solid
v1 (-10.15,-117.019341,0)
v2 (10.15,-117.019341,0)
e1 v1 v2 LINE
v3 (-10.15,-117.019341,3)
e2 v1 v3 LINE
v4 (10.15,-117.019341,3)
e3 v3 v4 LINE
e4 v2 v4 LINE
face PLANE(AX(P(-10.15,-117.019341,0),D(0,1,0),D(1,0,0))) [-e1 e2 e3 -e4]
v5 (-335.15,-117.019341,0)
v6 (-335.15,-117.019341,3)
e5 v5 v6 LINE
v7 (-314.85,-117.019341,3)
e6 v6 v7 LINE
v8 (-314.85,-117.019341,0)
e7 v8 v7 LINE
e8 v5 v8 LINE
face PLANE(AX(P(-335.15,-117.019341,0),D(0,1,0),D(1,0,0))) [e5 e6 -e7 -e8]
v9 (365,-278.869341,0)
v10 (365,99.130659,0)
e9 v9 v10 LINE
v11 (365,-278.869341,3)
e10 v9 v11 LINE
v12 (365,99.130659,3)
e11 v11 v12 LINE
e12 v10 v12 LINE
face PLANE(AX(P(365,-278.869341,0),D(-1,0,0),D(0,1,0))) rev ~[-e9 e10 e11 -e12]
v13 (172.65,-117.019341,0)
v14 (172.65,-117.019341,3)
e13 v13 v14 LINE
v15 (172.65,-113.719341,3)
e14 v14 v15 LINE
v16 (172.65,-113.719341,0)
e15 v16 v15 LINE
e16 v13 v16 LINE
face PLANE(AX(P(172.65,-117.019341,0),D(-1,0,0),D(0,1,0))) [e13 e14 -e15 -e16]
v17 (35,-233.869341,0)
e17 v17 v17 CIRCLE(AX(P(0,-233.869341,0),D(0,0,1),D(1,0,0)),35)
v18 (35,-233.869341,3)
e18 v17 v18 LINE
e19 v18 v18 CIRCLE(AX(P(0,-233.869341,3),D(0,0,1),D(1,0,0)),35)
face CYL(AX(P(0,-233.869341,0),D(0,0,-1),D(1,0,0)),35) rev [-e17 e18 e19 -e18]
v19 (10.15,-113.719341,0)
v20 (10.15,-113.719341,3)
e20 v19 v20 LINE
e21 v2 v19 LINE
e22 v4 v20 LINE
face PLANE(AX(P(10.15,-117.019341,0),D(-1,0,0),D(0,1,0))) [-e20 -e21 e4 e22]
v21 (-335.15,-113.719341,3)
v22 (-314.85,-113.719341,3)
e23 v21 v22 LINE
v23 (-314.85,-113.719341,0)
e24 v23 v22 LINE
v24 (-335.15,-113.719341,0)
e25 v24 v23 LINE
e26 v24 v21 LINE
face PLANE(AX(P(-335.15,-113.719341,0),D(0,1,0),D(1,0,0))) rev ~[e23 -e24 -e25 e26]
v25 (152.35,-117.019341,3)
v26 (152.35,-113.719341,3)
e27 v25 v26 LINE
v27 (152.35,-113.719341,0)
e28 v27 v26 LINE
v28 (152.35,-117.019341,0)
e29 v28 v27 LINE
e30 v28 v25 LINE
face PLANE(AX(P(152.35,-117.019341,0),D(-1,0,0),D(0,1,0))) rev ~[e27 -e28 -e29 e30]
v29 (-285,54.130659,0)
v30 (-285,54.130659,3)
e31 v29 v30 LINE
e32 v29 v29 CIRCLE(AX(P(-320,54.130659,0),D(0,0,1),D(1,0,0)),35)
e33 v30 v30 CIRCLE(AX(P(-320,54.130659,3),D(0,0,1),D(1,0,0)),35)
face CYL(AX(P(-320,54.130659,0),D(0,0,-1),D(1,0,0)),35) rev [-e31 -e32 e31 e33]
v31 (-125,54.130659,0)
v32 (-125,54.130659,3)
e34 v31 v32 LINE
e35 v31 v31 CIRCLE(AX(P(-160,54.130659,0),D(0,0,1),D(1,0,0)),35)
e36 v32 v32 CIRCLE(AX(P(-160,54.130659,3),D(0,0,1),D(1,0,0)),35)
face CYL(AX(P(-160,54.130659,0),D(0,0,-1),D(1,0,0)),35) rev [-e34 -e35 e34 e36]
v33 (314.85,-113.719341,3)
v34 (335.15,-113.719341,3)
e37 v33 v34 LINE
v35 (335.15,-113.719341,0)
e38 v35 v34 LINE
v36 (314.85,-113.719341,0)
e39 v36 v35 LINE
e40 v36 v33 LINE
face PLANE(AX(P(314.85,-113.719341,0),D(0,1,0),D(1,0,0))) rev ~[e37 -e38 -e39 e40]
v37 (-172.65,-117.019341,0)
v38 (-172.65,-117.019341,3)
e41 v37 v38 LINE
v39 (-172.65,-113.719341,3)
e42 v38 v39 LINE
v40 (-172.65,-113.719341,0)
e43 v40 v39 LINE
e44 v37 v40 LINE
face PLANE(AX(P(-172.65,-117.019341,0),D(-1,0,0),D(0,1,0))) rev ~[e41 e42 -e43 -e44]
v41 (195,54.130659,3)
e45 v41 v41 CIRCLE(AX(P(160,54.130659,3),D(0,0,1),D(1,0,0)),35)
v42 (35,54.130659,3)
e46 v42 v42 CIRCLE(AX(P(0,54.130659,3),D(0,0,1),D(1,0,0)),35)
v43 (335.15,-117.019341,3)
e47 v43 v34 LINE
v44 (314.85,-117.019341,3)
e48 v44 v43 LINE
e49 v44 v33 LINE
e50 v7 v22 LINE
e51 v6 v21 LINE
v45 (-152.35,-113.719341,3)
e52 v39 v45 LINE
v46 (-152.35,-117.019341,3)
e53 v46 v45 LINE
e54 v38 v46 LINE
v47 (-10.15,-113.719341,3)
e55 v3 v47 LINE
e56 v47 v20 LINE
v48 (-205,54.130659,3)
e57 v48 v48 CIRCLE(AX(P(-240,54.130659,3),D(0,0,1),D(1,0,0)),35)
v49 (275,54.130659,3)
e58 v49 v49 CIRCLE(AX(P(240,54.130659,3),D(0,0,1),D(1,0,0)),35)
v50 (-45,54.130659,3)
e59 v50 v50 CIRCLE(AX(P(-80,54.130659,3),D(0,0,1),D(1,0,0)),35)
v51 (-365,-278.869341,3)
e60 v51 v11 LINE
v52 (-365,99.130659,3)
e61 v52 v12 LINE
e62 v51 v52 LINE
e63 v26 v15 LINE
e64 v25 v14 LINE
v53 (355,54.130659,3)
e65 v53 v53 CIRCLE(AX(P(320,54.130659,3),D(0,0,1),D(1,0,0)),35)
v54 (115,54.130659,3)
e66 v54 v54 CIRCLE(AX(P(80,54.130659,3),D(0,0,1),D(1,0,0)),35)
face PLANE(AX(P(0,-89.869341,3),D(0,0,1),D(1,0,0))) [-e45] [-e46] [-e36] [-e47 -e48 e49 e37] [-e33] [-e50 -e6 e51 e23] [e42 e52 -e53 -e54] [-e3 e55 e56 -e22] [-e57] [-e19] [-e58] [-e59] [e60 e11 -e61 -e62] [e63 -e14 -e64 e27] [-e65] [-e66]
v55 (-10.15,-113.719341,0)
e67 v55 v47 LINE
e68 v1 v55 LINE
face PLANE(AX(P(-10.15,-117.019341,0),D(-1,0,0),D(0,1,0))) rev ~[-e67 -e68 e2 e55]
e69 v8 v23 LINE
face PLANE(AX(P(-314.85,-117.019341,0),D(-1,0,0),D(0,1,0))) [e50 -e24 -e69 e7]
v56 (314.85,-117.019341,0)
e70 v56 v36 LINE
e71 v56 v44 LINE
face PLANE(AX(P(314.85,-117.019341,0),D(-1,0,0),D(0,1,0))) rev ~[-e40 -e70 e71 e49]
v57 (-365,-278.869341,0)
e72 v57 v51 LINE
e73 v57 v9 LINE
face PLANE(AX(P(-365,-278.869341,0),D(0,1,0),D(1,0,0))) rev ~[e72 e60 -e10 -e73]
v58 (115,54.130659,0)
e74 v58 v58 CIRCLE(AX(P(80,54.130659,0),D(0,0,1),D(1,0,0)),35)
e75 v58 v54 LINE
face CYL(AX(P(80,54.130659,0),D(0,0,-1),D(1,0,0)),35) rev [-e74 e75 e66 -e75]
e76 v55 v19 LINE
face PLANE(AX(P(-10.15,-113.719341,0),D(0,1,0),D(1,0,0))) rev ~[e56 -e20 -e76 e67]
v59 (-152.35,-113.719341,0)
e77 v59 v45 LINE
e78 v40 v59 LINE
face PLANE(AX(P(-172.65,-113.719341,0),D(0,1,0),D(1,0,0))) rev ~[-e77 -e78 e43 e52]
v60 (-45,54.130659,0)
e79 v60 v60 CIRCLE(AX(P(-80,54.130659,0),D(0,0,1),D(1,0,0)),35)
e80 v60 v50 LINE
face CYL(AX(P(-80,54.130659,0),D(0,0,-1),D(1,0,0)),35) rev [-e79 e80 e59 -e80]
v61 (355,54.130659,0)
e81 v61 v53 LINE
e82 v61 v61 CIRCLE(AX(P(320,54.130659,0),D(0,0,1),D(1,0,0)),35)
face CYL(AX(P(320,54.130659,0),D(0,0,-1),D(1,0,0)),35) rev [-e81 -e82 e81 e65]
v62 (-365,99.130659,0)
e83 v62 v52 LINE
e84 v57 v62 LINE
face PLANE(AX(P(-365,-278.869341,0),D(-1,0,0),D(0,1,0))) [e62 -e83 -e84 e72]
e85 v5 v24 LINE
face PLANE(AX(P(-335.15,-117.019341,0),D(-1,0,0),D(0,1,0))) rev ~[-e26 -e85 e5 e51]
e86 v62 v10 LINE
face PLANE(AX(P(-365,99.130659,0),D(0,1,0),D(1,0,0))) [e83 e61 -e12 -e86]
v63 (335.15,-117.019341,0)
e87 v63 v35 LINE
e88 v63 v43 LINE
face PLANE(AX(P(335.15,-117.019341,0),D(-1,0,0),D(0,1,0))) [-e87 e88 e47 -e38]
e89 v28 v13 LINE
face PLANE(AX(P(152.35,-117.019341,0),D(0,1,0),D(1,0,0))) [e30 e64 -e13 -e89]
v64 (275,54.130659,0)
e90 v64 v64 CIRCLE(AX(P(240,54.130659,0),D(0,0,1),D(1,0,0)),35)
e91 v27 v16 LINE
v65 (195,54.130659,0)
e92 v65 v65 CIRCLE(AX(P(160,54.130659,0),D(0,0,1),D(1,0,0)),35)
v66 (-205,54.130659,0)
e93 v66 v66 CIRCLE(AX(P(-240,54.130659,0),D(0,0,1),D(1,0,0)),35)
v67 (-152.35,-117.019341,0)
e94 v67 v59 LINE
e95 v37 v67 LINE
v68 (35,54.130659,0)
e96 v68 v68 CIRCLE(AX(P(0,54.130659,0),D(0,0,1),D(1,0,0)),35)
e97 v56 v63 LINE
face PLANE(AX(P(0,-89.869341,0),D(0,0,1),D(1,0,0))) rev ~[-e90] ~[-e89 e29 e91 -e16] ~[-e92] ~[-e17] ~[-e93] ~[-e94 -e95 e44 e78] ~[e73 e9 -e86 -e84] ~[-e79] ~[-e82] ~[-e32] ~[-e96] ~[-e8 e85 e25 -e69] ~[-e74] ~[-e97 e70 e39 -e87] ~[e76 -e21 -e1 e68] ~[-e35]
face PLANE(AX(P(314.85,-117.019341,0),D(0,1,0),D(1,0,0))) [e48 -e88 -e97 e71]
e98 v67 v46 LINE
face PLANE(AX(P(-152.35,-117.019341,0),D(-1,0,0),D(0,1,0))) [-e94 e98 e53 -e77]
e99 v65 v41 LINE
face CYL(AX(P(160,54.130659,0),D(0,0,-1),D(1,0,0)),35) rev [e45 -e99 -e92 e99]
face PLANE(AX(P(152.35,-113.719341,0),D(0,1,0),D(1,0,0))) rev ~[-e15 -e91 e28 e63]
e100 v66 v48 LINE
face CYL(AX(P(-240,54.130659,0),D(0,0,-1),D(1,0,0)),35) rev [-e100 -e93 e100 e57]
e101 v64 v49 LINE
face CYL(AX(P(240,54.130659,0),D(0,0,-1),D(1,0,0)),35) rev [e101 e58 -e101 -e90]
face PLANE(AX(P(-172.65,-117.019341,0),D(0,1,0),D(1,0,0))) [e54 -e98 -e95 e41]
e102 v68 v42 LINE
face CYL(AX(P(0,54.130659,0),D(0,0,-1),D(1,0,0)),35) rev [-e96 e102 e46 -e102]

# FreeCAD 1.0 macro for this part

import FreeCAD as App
import Part
import Sketcher
from FreeCAD import Vector
Q = App.Units.Quantity

doc = App.newDocument("Part")
params = doc.addObject("Spreadsheet::Sheet", "Params")
for row, (alias, value) in enumerate([
    ("sketch1_diameter", "70 mm"),
    ("sketch1_width", "730 mm"),
    ("sketch1_height", "378 mm"),
    ("sketch1_width2", "20.3 mm"),
    ("sketch1_height2", "3.3 mm"),
    ("pad1_length", "3 mm"),
], start=1):
    params.set(f"A{row}", alias)
    params.set(f"B{row}", "=" + value)
    params.setAlias(f"B{row}", alias)

body = doc.addObject("PartDesign::Body", "Body")

sketch1 = doc.addObject("Sketcher::SketchObject", "Sketch")
body.addObject(sketch1)
sketch1.AttachmentSupport = (doc.XY_Plane, [""])
sketch1.MapMode = "FlatFace"
sketch1.addGeometry(Part.LineSegment(Vector(-365, 99.1, 0), Vector(-365, -278.9, 0)), False)
sketch1.addGeometry(Part.LineSegment(Vector(-365, -278.9, 0), Vector(365, -278.9, 0)), False)
sketch1.addGeometry(Part.LineSegment(Vector(365, -278.9, 0), Vector(365, 99.1, 0)), False)
sketch1.addGeometry(Part.LineSegment(Vector(365, 99.1, 0), Vector(-365, 99.1, 0)), False)
sketch1.addGeometry(Part.LineSegment(Vector(-314.9, -117, 0), Vector(-335.1, -117, 0)), False)
sketch1.addGeometry(Part.LineSegment(Vector(-335.1, -117, 0), Vector(-335.1, -113.7, 0)), False)
sketch1.addGeometry(Part.LineSegment(Vector(-335.1, -113.7, 0), Vector(-314.9, -113.7, 0)), False)
sketch1.addGeometry(Part.LineSegment(Vector(-314.9, -113.7, 0), Vector(-314.9, -117, 0)), False)
sketch1.addGeometry(Part.LineSegment(Vector(-152.3, -117, 0), Vector(-172.7, -117, 0)), False)
sketch1.addGeometry(Part.LineSegment(Vector(-172.7, -117, 0), Vector(-172.7, -113.7, 0)), False)
sketch1.addGeometry(Part.LineSegment(Vector(-172.7, -113.7, 0), Vector(-152.3, -113.7, 0)), False)
sketch1.addGeometry(Part.LineSegment(Vector(-152.3, -113.7, 0), Vector(-152.3, -117, 0)), False)
sketch1.addGeometry(Part.Circle(Vector(0, -233.9, 0), Vector(0, 0, 1), 35), False)
sketch1.addGeometry(Part.LineSegment(Vector(10.2, -117, 0), Vector(-10.2, -117, 0)), False)
sketch1.addGeometry(Part.LineSegment(Vector(-10.2, -117, 0), Vector(-10.2, -113.7, 0)), False)
sketch1.addGeometry(Part.LineSegment(Vector(-10.2, -113.7, 0), Vector(10.2, -113.7, 0)), False)
sketch1.addGeometry(Part.LineSegment(Vector(10.2, -113.7, 0), Vector(10.2, -117, 0)), False)
sketch1.addGeometry(Part.LineSegment(Vector(172.7, -117, 0), Vector(152.3, -117, 0)), False)
sketch1.addGeometry(Part.LineSegment(Vector(152.3, -117, 0), Vector(152.3, -113.7, 0)), False)
sketch1.addGeometry(Part.LineSegment(Vector(152.3, -113.7, 0), Vector(172.7, -113.7, 0)), False)
sketch1.addGeometry(Part.LineSegment(Vector(172.7, -113.7, 0), Vector(172.7, -117, 0)), False)
sketch1.addGeometry(Part.LineSegment(Vector(335.1, -117, 0), Vector(314.9, -117, 0)), False)
sketch1.addGeometry(Part.LineSegment(Vector(314.9, -117, 0), Vector(314.9, -113.7, 0)), False)
sketch1.addGeometry(Part.LineSegment(Vector(314.9, -113.7, 0), Vector(335.1, -113.7, 0)), False)
sketch1.addGeometry(Part.LineSegment(Vector(335.1, -113.7, 0), Vector(335.1, -117, 0)), False)
sketch1.addGeometry(Part.Circle(Vector(-320, 54.1, 0), Vector(0, 0, 1), 35), False)
sketch1.addGeometry(Part.Circle(Vector(-240, 54.1, 0), Vector(0, 0, 1), 35), False)
sketch1.addGeometry(Part.Circle(Vector(-160, 54.1, 0), Vector(0, 0, 1), 35), False)
sketch1.addGeometry(Part.Circle(Vector(-80, 54.1, 0), Vector(0, 0, 1), 35), False)
sketch1.addGeometry(Part.Circle(Vector(0, 54.1, 0), Vector(0, 0, 1), 35), False)
sketch1.addGeometry(Part.Circle(Vector(80, 54.1, 0), Vector(0, 0, 1), 35), False)
sketch1.addGeometry(Part.Circle(Vector(160, 54.1, 0), Vector(0, 0, 1), 35), False)
sketch1.addGeometry(Part.Circle(Vector(240, 54.1, 0), Vector(0, 0, 1), 35), False)
sketch1.addGeometry(Part.Circle(Vector(320, 54.1, 0), Vector(0, 0, 1), 35), False)
sketch1.addConstraint(Sketcher.Constraint("Coincident", 0, 2, 1, 1))
sketch1.addConstraint(Sketcher.Constraint("Coincident", 1, 2, 2, 1))
sketch1.addConstraint(Sketcher.Constraint("Coincident", 2, 2, 3, 1))
sketch1.addConstraint(Sketcher.Constraint("Coincident", 3, 2, 0, 1))
sketch1.addConstraint(Sketcher.Constraint("Coincident", 4, 2, 5, 1))
sketch1.addConstraint(Sketcher.Constraint("Coincident", 5, 2, 6, 1))
sketch1.addConstraint(Sketcher.Constraint("Coincident", 6, 2, 7, 1))
sketch1.addConstraint(Sketcher.Constraint("Coincident", 7, 2, 4, 1))
sketch1.addConstraint(Sketcher.Constraint("Coincident", 8, 2, 9, 1))
sketch1.addConstraint(Sketcher.Constraint("Coincident", 9, 2, 10, 1))
sketch1.addConstraint(Sketcher.Constraint("Coincident", 10, 2, 11, 1))
sketch1.addConstraint(Sketcher.Constraint("Coincident", 11, 2, 8, 1))
sketch1.addConstraint(Sketcher.Constraint("Coincident", 13, 2, 14, 1))
sketch1.addConstraint(Sketcher.Constraint("Coincident", 14, 2, 15, 1))
sketch1.addConstraint(Sketcher.Constraint("Coincident", 15, 2, 16, 1))
sketch1.addConstraint(Sketcher.Constraint("Coincident", 16, 2, 13, 1))
sketch1.addConstraint(Sketcher.Constraint("Coincident", 17, 2, 18, 1))
sketch1.addConstraint(Sketcher.Constraint("Coincident", 18, 2, 19, 1))
sketch1.addConstraint(Sketcher.Constraint("Coincident", 19, 2, 20, 1))
sketch1.addConstraint(Sketcher.Constraint("Coincident", 20, 2, 17, 1))
sketch1.addConstraint(Sketcher.Constraint("Coincident", 21, 2, 22, 1))
sketch1.addConstraint(Sketcher.Constraint("Coincident", 22, 2, 23, 1))
sketch1.addConstraint(Sketcher.Constraint("Coincident", 23, 2, 24, 1))
sketch1.addConstraint(Sketcher.Constraint("Coincident", 24, 2, 21, 1))
sketch1.addConstraint(Sketcher.Constraint("Vertical", 0))
sketch1.addConstraint(Sketcher.Constraint("Horizontal", 1))
sketch1.addConstraint(Sketcher.Constraint("Vertical", 2))
sketch1.addConstraint(Sketcher.Constraint("Horizontal", 3))
sketch1.addConstraint(Sketcher.Constraint("Horizontal", 4))
sketch1.addConstraint(Sketcher.Constraint("Vertical", 5))
sketch1.addConstraint(Sketcher.Constraint("Horizontal", 6))
sketch1.addConstraint(Sketcher.Constraint("Vertical", 7))
sketch1.addConstraint(Sketcher.Constraint("Horizontal", 8))
sketch1.addConstraint(Sketcher.Constraint("Vertical", 9))
sketch1.addConstraint(Sketcher.Constraint("Horizontal", 10))
sketch1.addConstraint(Sketcher.Constraint("Vertical", 11))
sketch1.addConstraint(Sketcher.Constraint("Horizontal", 13))
sketch1.addConstraint(Sketcher.Constraint("Vertical", 14))
sketch1.addConstraint(Sketcher.Constraint("Horizontal", 15))
sketch1.addConstraint(Sketcher.Constraint("Vertical", 16))
sketch1.addConstraint(Sketcher.Constraint("Horizontal", 17))
sketch1.addConstraint(Sketcher.Constraint("Vertical", 18))
sketch1.addConstraint(Sketcher.Constraint("Horizontal", 19))
sketch1.addConstraint(Sketcher.Constraint("Vertical", 20))
sketch1.addConstraint(Sketcher.Constraint("Horizontal", 21))
sketch1.addConstraint(Sketcher.Constraint("Vertical", 22))
sketch1.addConstraint(Sketcher.Constraint("Horizontal", 23))
sketch1.addConstraint(Sketcher.Constraint("Vertical", 24))
sketch1.addConstraint(Sketcher.Constraint("Equal", 12, 25))
sketch1.addConstraint(Sketcher.Constraint("Equal", 25, 26))
sketch1.addConstraint(Sketcher.Constraint("Equal", 26, 27))
sketch1.addConstraint(Sketcher.Constraint("Equal", 27, 28))
sketch1.addConstraint(Sketcher.Constraint("Equal", 28, 29))
sketch1.addConstraint(Sketcher.Constraint("Equal", 29, 30))
sketch1.addConstraint(Sketcher.Constraint("Equal", 30, 31))
sketch1.addConstraint(Sketcher.Constraint("Equal", 31, 32))
sketch1.addConstraint(Sketcher.Constraint("Equal", 32, 33))
sketch1.addConstraint(Sketcher.Constraint("Symmetric", 28, 3, 30, 3, -2))
sketch1.addConstraint(Sketcher.Constraint("Symmetric", 27, 3, 31, 3, -2))
sketch1.addConstraint(Sketcher.Constraint("Symmetric", 26, 3, 32, 3, -2))
sketch1.addConstraint(Sketcher.Constraint("Symmetric", 25, 3, 33, 3, -2))
sketch1.addConstraint(Sketcher.Constraint("Symmetric", 11, 2, 17, 2, -2))
sketch1.addConstraint(Sketcher.Constraint("Symmetric", 9, 2, 19, 2, -2))
sketch1.addConstraint(Sketcher.Constraint("Symmetric", 7, 2, 21, 2, -2))
sketch1.addConstraint(Sketcher.Constraint("Symmetric", 5, 2, 23, 2, -2))
sketch1.addConstraint(Sketcher.Constraint("PointOnObject", 12, 3, -2))
sketch1.addConstraint(Sketcher.Constraint("PointOnObject", 29, 3, -2))
sketch1.addConstraint(Sketcher.Constraint("Horizontal", 25, 3, 26, 3))
sketch1.addConstraint(Sketcher.Constraint("Horizontal", 26, 3, 27, 3))
sketch1.addConstraint(Sketcher.Constraint("Horizontal", 27, 3, 28, 3))
sketch1.addConstraint(Sketcher.Constraint("Horizontal", 28, 3, 29, 3))
sketch1.addConstraint(Sketcher.Constraint("Horizontal", 7, 2, 8, 2))
sketch1.addConstraint(Sketcher.Constraint("Horizontal", 6, 2, 9, 2))
sketch1.addConstraint(Sketcher.Constraint("Horizontal", 11, 2, 13, 2))
sketch1.addConstraint(Sketcher.Constraint("Horizontal", 10, 2, 14, 2))
sketch1.addConstraint(Sketcher.Constraint("Equal", 6, 8))
sketch1.addConstraint(Sketcher.Constraint("Equal", 10, 13))
sketch1.addConstraint(Sketcher.Constraint("Diameter", 12, Q("70 mm")))
sketch1.addConstraint(Sketcher.Constraint("DistanceX", 1, 1, 1, 2, Q("730 mm")))
sketch1.addConstraint(Sketcher.Constraint("DistanceY", 0, 2, 0, 1, Q("378 mm")))
sketch1.addConstraint(Sketcher.Constraint("DistanceX", 4, 2, 4, 1, Q("20.3 mm")))
sketch1.addConstraint(Sketcher.Constraint("DistanceY", 5, 1, 5, 2, Q("3.3 mm")))
sketch1.addConstraint(Sketcher.Constraint("DistanceX", 25, 3, -1, 1, Q("320 mm")))
sketch1.addConstraint(Sketcher.Constraint("DistanceX", 26, 3, -1, 1, Q("240 mm")))
sketch1.addConstraint(Sketcher.Constraint("DistanceX", 27, 3, -1, 1, Q("160 mm")))
sketch1.addConstraint(Sketcher.Constraint("DistanceX", 28, 3, -1, 1, Q("80 mm")))
sketch1.addConstraint(Sketcher.Constraint("DistanceX", 0, 2, -1, 1, Q("365 mm")))
sketch1.addConstraint(Sketcher.Constraint("DistanceY", 12, 3, 25, 3, Q("288 mm")))
sketch1.addConstraint(Sketcher.Constraint("DistanceY", 0, 2, 25, 3, Q("333 mm")))
sketch1.addConstraint(Sketcher.Constraint("DistanceX", 7, 2, 8, 2, Q("142.2 mm")))
sketch1.addConstraint(Sketcher.Constraint("DistanceX", 11, 2, 13, 2, Q("142.2 mm")))
sketch1.addConstraint(Sketcher.Constraint("DistanceX", 16, 2, 17, 2, Q("142.2 mm")))
sketch1.addConstraint(Sketcher.Constraint("DistanceY", 0, 2, 4, 2, Q("161.85 mm")))
sketch1.addConstraint(Sketcher.Constraint("DistanceY", 12, 3, -1, 1, Q("233.869341 mm")))
sketch1.setExpression("Constraints[77]", "Params.sketch1_diameter")
sketch1.setExpression("Constraints[78]", "Params.sketch1_width")
sketch1.setExpression("Constraints[79]", "Params.sketch1_height")
sketch1.setExpression("Constraints[80]", "Params.sketch1_width2")
sketch1.setExpression("Constraints[81]", "Params.sketch1_height2")
pad1 = doc.addObject("PartDesign::Pad", "Pad")
body.addObject(pad1)
pad1.Profile = sketch1
pad1.setExpression("Length", "Params.pad1_length")

doc.recompute()
